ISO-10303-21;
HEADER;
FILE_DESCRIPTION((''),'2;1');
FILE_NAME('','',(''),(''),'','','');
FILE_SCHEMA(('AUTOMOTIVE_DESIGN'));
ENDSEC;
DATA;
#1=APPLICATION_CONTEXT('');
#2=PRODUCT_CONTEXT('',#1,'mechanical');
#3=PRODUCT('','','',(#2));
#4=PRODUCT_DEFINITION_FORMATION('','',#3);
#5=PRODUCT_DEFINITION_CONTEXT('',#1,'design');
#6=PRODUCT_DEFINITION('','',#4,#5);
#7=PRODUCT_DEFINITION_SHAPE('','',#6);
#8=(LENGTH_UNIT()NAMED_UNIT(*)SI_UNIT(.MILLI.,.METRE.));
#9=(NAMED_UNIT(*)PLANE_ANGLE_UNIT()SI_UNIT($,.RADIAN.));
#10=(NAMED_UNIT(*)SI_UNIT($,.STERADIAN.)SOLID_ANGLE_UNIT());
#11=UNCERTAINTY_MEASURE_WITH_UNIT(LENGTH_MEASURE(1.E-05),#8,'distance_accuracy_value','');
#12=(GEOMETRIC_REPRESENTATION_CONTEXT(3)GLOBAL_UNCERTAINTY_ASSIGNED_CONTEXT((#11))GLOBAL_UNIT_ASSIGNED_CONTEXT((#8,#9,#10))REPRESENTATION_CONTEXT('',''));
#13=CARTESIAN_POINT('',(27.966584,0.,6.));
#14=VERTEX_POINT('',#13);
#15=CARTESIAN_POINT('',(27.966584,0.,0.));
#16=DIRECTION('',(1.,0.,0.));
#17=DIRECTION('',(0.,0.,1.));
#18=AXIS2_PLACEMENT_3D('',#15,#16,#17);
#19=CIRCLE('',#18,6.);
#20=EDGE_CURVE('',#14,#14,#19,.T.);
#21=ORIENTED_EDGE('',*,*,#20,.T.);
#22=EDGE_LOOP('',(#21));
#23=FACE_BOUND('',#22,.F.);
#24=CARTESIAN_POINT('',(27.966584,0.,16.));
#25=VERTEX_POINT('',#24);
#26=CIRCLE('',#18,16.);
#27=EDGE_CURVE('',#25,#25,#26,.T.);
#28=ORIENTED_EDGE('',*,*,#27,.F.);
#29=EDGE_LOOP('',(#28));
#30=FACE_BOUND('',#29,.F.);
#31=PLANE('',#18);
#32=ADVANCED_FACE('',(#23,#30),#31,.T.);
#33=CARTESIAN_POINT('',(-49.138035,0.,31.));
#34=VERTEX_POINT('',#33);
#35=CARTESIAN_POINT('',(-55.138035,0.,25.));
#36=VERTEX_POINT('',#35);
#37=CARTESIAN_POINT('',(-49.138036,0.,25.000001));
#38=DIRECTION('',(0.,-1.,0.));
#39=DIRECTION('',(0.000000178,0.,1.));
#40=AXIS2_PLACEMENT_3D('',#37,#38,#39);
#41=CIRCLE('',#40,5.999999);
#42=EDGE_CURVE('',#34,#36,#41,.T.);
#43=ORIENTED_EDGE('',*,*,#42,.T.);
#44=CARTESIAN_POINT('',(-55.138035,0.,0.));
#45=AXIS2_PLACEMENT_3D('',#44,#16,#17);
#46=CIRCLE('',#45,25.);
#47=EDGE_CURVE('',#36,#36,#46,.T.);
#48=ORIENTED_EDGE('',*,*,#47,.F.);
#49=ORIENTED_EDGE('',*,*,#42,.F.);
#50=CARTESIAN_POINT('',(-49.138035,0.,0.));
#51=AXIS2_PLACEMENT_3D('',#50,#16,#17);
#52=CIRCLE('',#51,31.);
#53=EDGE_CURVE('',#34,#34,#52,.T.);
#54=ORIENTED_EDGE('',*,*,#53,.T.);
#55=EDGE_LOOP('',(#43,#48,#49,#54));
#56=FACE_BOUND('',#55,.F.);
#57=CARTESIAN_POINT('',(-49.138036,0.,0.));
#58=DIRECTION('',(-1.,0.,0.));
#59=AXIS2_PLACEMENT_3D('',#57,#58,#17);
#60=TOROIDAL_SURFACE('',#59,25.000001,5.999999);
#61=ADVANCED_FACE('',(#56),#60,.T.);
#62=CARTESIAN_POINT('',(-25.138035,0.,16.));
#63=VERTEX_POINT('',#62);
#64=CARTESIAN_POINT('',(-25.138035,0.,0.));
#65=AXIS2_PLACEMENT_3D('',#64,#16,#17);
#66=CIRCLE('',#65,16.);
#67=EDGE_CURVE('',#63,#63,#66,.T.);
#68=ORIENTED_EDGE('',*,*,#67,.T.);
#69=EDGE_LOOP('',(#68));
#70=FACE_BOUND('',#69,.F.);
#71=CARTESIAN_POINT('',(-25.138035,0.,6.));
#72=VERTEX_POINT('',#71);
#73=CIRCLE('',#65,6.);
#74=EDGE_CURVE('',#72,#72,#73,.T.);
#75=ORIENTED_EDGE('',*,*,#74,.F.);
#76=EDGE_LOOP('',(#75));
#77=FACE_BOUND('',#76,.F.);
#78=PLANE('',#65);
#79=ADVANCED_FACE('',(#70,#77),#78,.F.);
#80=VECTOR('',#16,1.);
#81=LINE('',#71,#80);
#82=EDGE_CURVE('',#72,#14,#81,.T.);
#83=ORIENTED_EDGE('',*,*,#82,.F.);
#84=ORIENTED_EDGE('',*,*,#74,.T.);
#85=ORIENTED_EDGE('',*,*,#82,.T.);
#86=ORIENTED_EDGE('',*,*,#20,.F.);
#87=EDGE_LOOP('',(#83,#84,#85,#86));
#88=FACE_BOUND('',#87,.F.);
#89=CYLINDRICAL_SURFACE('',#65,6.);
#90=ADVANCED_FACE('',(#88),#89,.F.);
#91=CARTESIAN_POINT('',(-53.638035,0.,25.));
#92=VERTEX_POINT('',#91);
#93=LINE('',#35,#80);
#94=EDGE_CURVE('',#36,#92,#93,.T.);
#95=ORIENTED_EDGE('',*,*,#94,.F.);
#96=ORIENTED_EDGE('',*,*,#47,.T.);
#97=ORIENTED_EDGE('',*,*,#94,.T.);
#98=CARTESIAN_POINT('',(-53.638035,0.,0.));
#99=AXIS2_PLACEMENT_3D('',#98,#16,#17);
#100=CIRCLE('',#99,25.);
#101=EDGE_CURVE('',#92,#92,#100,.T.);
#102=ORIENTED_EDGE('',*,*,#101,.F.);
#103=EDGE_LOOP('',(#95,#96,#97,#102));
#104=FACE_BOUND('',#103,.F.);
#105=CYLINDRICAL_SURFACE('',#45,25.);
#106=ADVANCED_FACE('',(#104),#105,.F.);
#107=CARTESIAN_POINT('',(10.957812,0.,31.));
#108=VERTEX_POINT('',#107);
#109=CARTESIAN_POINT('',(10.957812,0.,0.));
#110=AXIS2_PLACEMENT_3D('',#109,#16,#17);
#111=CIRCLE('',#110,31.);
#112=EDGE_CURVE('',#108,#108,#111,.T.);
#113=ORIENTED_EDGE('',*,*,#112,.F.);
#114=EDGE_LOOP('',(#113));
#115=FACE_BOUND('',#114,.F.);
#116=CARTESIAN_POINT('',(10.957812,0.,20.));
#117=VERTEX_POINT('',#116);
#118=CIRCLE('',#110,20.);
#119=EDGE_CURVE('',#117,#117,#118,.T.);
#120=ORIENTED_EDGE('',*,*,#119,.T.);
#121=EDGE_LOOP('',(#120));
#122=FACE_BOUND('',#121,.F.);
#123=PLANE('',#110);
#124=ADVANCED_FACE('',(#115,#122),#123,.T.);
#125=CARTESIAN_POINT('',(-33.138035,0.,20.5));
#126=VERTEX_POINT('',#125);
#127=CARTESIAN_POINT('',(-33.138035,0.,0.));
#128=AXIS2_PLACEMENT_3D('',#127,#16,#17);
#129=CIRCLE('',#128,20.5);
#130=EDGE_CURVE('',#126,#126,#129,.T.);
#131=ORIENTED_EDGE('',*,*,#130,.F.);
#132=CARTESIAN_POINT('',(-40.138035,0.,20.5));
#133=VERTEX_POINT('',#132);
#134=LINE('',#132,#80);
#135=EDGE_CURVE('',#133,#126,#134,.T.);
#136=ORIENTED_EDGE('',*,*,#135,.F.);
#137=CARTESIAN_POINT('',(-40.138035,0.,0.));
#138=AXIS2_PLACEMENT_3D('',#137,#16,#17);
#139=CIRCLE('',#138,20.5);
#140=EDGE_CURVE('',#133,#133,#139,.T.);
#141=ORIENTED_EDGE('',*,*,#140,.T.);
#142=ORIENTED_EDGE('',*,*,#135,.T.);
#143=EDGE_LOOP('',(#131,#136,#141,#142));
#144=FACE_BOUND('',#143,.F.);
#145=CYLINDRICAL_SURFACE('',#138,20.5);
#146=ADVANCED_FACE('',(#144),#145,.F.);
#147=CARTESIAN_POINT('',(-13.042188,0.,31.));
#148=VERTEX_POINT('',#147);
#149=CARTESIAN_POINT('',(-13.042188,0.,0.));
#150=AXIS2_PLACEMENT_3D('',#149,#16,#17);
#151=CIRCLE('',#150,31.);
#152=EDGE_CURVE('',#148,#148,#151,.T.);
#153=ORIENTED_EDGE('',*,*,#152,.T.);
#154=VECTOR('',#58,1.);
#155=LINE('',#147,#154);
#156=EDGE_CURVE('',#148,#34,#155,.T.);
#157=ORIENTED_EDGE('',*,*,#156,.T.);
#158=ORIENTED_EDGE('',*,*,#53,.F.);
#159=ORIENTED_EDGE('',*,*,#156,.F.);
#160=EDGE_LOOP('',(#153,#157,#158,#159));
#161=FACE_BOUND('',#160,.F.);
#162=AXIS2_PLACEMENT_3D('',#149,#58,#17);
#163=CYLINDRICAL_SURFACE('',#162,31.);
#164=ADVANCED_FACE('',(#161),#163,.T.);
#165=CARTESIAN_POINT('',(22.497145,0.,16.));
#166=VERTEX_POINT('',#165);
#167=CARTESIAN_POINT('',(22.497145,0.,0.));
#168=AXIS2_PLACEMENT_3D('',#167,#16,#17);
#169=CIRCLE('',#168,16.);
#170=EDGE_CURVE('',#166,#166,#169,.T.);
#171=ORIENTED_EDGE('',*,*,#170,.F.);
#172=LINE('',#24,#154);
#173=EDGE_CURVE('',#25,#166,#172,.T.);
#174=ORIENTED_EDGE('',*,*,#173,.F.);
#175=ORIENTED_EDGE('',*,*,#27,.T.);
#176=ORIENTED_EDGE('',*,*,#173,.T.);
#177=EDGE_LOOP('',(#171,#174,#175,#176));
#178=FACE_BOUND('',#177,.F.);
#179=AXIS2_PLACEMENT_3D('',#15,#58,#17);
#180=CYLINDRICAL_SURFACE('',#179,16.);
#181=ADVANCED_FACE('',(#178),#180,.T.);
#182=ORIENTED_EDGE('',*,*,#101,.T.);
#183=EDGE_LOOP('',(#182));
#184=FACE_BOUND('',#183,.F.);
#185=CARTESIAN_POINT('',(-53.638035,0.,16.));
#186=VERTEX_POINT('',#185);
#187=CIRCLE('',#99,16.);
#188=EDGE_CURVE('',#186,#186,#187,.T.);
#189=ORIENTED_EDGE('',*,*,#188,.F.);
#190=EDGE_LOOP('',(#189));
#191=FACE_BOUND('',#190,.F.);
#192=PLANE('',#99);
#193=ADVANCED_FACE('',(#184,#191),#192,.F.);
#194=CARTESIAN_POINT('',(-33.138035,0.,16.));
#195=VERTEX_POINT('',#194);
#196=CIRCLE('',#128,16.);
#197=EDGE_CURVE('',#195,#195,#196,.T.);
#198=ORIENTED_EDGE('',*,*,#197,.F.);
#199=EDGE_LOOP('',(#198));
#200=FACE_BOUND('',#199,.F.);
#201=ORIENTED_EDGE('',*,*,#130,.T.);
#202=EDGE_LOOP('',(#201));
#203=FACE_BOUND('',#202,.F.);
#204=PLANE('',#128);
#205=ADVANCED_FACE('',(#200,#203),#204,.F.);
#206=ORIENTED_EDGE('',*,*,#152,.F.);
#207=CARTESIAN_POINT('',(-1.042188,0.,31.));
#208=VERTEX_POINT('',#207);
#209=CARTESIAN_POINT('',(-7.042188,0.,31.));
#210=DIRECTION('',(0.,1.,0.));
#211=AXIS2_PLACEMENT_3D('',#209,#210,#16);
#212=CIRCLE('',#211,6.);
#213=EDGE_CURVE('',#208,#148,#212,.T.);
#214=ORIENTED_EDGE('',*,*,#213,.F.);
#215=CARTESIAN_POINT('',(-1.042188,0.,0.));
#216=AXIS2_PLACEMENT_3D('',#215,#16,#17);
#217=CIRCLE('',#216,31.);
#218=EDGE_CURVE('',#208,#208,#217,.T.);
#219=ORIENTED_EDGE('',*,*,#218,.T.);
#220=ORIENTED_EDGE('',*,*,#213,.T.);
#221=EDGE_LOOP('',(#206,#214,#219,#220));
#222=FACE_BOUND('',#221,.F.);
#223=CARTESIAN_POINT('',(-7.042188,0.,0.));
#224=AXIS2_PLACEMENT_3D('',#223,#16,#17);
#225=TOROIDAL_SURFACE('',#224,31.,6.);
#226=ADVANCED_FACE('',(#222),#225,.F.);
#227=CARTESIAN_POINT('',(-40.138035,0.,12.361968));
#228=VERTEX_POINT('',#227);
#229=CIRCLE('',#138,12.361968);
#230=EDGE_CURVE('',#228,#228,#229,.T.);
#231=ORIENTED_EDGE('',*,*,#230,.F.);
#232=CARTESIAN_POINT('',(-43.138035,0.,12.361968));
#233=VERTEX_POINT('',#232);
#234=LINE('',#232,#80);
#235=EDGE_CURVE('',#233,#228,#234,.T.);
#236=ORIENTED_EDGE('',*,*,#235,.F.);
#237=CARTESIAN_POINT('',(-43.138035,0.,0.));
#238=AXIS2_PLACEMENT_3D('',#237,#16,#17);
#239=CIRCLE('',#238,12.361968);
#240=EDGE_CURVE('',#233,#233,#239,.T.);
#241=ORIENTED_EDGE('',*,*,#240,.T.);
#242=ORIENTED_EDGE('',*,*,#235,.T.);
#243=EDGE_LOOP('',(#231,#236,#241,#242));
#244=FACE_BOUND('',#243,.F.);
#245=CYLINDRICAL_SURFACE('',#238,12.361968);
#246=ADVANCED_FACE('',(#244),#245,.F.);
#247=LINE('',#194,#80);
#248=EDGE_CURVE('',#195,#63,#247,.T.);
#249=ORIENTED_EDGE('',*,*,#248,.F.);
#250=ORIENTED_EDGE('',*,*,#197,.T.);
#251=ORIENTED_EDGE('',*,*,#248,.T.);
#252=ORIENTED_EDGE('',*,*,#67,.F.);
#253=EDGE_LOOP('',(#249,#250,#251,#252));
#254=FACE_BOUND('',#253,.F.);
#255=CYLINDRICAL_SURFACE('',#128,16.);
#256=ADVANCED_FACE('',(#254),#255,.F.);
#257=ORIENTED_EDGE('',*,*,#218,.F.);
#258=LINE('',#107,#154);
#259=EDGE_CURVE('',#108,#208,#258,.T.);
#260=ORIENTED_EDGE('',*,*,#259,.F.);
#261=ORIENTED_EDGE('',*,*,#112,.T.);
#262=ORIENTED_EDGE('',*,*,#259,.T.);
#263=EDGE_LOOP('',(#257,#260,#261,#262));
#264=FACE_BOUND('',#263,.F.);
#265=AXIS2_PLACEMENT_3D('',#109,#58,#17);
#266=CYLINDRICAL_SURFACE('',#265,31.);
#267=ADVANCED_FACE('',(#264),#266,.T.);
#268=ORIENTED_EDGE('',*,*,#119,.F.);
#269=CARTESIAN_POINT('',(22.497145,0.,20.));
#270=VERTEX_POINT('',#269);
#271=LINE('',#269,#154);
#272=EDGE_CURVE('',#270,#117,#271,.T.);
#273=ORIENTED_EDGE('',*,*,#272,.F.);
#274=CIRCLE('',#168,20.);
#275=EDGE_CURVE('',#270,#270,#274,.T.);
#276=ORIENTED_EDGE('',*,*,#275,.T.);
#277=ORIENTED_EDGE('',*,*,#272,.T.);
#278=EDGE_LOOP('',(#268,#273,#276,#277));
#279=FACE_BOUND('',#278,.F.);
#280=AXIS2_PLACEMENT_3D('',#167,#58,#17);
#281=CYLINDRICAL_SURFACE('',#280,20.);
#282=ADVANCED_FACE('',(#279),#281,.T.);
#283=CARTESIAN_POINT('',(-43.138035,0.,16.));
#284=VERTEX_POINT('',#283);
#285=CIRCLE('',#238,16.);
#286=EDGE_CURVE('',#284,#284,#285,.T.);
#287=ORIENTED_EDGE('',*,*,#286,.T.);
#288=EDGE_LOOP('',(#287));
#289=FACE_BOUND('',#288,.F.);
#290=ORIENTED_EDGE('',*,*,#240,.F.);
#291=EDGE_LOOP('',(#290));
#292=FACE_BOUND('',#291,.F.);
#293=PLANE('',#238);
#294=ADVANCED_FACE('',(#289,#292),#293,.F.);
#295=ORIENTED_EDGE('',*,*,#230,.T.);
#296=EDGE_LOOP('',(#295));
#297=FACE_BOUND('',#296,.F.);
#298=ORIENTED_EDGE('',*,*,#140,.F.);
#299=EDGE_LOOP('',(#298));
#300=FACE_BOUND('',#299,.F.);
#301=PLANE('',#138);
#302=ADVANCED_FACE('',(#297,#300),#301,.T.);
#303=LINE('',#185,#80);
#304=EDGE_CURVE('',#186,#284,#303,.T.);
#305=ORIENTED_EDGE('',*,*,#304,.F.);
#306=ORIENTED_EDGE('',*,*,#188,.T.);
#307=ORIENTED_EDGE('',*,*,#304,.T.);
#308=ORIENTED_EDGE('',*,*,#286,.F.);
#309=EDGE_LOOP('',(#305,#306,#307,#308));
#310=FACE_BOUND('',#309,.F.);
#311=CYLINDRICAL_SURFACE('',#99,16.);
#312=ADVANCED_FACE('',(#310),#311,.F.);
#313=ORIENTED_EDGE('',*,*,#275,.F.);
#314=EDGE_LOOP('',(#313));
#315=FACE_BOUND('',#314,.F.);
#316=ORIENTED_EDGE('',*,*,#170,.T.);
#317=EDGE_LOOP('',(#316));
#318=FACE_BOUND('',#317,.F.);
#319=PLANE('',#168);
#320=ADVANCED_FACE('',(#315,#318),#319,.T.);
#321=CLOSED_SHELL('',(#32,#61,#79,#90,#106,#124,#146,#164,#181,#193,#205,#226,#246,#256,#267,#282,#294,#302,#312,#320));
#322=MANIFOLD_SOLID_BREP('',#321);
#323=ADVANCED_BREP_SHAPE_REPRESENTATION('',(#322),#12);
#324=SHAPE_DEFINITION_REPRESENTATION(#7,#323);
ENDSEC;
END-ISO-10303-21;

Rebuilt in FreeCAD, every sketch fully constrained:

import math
import FreeCAD as App
import Part
import Sketcher

doc = App.newDocument("Part")
body = doc.addObject("PartDesign::Body", "Body")

# Sketch on XZ plane
sketch1 = body.newObject("Sketcher::SketchObject", "Sketch")
sketch1.AttachmentSupport = (doc.getObject("XZ_Plane"), [""])
sketch1.MapMode = "FlatFace"
sketch1.addGeometry([
    Part.LineSegment(App.Vector(-13.042188, 31, 0), App.Vector(-49.138035, 31, 0)),  # 0
    Part.ArcOfCircle(Part.Circle(App.Vector(-49.138036, 25.000001, 0), App.Vector(0, 0, 1), 5.999999), math.radians(89.99999), math.radians(180.00001)),  # 1
    Part.LineSegment(App.Vector(-55.138035, 25, 0), App.Vector(-53.638035, 25, 0)),  # 2
    Part.LineSegment(App.Vector(-53.638035, 25, 0), App.Vector(-53.638035, 16, 0)),  # 3
    Part.LineSegment(App.Vector(-53.638035, 16, 0), App.Vector(-43.138035, 16, 0)),  # 4
    Part.LineSegment(App.Vector(-43.138035, 16, 0), App.Vector(-43.138035, 12.361968, 0)),  # 5
    Part.LineSegment(App.Vector(-43.138035, 12.361968, 0), App.Vector(-40.138035, 12.361968, 0)),  # 6
    Part.LineSegment(App.Vector(-40.138035, 12.361968, 0), App.Vector(-40.138035, 20.5, 0)),  # 7
    Part.LineSegment(App.Vector(-40.138035, 20.5, 0), App.Vector(-33.138035, 20.5, 0)),  # 8
    Part.LineSegment(App.Vector(-33.138035, 20.5, 0), App.Vector(-33.138035, 16, 0)),  # 9
    Part.LineSegment(App.Vector(-33.138035, 16, 0), App.Vector(-25.138035, 16, 0)),  # 10
    Part.LineSegment(App.Vector(-25.138035, 16, 0), App.Vector(-25.138035, 6, 0)),  # 11
    Part.LineSegment(App.Vector(-25.138035, 6, 0), App.Vector(27.966584, 6, 0)),  # 12
    Part.LineSegment(App.Vector(27.966584, 6, 0), App.Vector(27.966584, 16, 0)),  # 13
    Part.LineSegment(App.Vector(27.966584, 16, 0), App.Vector(22.497145, 16, 0)),  # 14
    Part.LineSegment(App.Vector(22.497145, 16, 0), App.Vector(22.497145, 20, 0)),  # 15
    Part.LineSegment(App.Vector(22.497145, 20, 0), App.Vector(10.957812, 20, 0)),  # 16
    Part.LineSegment(App.Vector(10.957812, 20, 0), App.Vector(10.957812, 31, 0)),  # 17
    Part.LineSegment(App.Vector(10.957812, 31, 0), App.Vector(-1.042188, 31, 0)),  # 18
    Part.ArcOfCircle(Part.Circle(App.Vector(-7.042188, 31, 0), App.Vector(0, 0, 1), 6), math.radians(180), math.radians(360)),  # 19
], False)
sketch1.addConstraint([
    Sketcher.Constraint("Tangent", 0, 2, 1, 1),
    Sketcher.Constraint("Coincident", 1, 2, 2, 1),
    Sketcher.Constraint("Coincident", 2, 2, 3, 1),
    Sketcher.Constraint("Coincident", 3, 2, 4, 1),
    Sketcher.Constraint("Coincident", 4, 2, 5, 1),
    Sketcher.Constraint("Coincident", 5, 2, 6, 1),
    Sketcher.Constraint("Coincident", 6, 2, 7, 1),
    Sketcher.Constraint("Coincident", 7, 2, 8, 1),
    Sketcher.Constraint("Coincident", 8, 2, 9, 1),
    Sketcher.Constraint("Coincident", 9, 2, 10, 1),
    Sketcher.Constraint("Coincident", 10, 2, 11, 1),
    Sketcher.Constraint("Coincident", 11, 2, 12, 1),
    Sketcher.Constraint("Coincident", 12, 2, 13, 1),
    Sketcher.Constraint("Coincident", 13, 2, 14, 1),
    Sketcher.Constraint("Coincident", 14, 2, 15, 1),
    Sketcher.Constraint("Coincident", 15, 2, 16, 1),
    Sketcher.Constraint("Coincident", 16, 2, 17, 1),
    Sketcher.Constraint("Coincident", 17, 2, 18, 1),
    Sketcher.Constraint("Coincident", 18, 2, 19, 2),
    Sketcher.Constraint("Coincident", 19, 1, 0, 1),
    Sketcher.Constraint("Horizontal", 0),
    Sketcher.Constraint("Horizontal", 2),
    Sketcher.Constraint("Vertical", 3),
    Sketcher.Constraint("Horizontal", 4),
    Sketcher.Constraint("Vertical", 5),
    Sketcher.Constraint("Horizontal", 6),
    Sketcher.Constraint("Vertical", 7),
    Sketcher.Constraint("Horizontal", 8),
    Sketcher.Constraint("Vertical", 9),
    Sketcher.Constraint("Horizontal", 10),
    Sketcher.Constraint("Vertical", 11),
    Sketcher.Constraint("Horizontal", 12),
    Sketcher.Constraint("Vertical", 13),
    Sketcher.Constraint("Horizontal", 14),
    Sketcher.Constraint("Vertical", 15),
    Sketcher.Constraint("Horizontal", 16),
    Sketcher.Constraint("Vertical", 17),
    Sketcher.Constraint("Horizontal", 18),
    Sketcher.Constraint("Equal", 1, 19),
    Sketcher.Constraint("Horizontal", 19, 3, 0, 2),
    Sketcher.Constraint("Horizontal", 4, 2, 9, 2),
    Sketcher.Constraint("Horizontal", 10, 2, 13, 2),
    Sketcher.Constraint("Horizontal", 0, 2, 17, 2),
    Sketcher.Constraint("Radius", 1, 5.999999),
    Sketcher.Constraint("DistanceX", 6, 1, 6, 2, 3.0),
    Sketcher.Constraint("DistanceX", 8, 1, 8, 2, 7.0),
    Sketcher.Constraint("DistanceX", 10, 1, 10, 2, 8.0),
    Sketcher.Constraint("DistanceX", 18, 2, 18, 1, 12.0),
    Sketcher.Constraint("DistanceY", 3, 2, 3, 1, 9.0),
    Sketcher.Constraint("DistanceY", 11, 2, 11, 1, 10.0),
    Sketcher.Constraint("DistanceY", 15, 1, 15, 2, 4.0),
    Sketcher.Constraint("DistanceY", 17, 1, 17, 2, 11.0),
    Sketcher.Constraint("DistanceX", 2, 1, 2, 2, 1.5),
    Sketcher.Constraint("DistanceX", 4, 1, 4, 2, 10.5),
    Sketcher.Constraint("DistanceY", 9, 2, 9, 1, 4.5),
    Sketcher.Constraint("DistanceY", -1, 1, 1, 3, 25.000001),
    Sketcher.Constraint("DistanceX", 12, 1, 12, 2, 53.104619),
    Sketcher.Constraint("DistanceX", 14, 2, 14, 1, 5.469439),
    Sketcher.Constraint("DistanceX", 0, 2, 0, 1, 36.095847),
    Sketcher.Constraint("DistanceY", 5, 2, 5, 1, 3.638032),
    Sketcher.Constraint("DistanceX", 19, 3, -1, 1, 7.042188),
])
revolution = body.newObject("PartDesign::Revolution", "Revolution")
revolution.Profile = sketch1
revolution.ReferenceAxis = (sketch1, ["H_Axis"])
revolution.Angle = 360

doc.recompute()
